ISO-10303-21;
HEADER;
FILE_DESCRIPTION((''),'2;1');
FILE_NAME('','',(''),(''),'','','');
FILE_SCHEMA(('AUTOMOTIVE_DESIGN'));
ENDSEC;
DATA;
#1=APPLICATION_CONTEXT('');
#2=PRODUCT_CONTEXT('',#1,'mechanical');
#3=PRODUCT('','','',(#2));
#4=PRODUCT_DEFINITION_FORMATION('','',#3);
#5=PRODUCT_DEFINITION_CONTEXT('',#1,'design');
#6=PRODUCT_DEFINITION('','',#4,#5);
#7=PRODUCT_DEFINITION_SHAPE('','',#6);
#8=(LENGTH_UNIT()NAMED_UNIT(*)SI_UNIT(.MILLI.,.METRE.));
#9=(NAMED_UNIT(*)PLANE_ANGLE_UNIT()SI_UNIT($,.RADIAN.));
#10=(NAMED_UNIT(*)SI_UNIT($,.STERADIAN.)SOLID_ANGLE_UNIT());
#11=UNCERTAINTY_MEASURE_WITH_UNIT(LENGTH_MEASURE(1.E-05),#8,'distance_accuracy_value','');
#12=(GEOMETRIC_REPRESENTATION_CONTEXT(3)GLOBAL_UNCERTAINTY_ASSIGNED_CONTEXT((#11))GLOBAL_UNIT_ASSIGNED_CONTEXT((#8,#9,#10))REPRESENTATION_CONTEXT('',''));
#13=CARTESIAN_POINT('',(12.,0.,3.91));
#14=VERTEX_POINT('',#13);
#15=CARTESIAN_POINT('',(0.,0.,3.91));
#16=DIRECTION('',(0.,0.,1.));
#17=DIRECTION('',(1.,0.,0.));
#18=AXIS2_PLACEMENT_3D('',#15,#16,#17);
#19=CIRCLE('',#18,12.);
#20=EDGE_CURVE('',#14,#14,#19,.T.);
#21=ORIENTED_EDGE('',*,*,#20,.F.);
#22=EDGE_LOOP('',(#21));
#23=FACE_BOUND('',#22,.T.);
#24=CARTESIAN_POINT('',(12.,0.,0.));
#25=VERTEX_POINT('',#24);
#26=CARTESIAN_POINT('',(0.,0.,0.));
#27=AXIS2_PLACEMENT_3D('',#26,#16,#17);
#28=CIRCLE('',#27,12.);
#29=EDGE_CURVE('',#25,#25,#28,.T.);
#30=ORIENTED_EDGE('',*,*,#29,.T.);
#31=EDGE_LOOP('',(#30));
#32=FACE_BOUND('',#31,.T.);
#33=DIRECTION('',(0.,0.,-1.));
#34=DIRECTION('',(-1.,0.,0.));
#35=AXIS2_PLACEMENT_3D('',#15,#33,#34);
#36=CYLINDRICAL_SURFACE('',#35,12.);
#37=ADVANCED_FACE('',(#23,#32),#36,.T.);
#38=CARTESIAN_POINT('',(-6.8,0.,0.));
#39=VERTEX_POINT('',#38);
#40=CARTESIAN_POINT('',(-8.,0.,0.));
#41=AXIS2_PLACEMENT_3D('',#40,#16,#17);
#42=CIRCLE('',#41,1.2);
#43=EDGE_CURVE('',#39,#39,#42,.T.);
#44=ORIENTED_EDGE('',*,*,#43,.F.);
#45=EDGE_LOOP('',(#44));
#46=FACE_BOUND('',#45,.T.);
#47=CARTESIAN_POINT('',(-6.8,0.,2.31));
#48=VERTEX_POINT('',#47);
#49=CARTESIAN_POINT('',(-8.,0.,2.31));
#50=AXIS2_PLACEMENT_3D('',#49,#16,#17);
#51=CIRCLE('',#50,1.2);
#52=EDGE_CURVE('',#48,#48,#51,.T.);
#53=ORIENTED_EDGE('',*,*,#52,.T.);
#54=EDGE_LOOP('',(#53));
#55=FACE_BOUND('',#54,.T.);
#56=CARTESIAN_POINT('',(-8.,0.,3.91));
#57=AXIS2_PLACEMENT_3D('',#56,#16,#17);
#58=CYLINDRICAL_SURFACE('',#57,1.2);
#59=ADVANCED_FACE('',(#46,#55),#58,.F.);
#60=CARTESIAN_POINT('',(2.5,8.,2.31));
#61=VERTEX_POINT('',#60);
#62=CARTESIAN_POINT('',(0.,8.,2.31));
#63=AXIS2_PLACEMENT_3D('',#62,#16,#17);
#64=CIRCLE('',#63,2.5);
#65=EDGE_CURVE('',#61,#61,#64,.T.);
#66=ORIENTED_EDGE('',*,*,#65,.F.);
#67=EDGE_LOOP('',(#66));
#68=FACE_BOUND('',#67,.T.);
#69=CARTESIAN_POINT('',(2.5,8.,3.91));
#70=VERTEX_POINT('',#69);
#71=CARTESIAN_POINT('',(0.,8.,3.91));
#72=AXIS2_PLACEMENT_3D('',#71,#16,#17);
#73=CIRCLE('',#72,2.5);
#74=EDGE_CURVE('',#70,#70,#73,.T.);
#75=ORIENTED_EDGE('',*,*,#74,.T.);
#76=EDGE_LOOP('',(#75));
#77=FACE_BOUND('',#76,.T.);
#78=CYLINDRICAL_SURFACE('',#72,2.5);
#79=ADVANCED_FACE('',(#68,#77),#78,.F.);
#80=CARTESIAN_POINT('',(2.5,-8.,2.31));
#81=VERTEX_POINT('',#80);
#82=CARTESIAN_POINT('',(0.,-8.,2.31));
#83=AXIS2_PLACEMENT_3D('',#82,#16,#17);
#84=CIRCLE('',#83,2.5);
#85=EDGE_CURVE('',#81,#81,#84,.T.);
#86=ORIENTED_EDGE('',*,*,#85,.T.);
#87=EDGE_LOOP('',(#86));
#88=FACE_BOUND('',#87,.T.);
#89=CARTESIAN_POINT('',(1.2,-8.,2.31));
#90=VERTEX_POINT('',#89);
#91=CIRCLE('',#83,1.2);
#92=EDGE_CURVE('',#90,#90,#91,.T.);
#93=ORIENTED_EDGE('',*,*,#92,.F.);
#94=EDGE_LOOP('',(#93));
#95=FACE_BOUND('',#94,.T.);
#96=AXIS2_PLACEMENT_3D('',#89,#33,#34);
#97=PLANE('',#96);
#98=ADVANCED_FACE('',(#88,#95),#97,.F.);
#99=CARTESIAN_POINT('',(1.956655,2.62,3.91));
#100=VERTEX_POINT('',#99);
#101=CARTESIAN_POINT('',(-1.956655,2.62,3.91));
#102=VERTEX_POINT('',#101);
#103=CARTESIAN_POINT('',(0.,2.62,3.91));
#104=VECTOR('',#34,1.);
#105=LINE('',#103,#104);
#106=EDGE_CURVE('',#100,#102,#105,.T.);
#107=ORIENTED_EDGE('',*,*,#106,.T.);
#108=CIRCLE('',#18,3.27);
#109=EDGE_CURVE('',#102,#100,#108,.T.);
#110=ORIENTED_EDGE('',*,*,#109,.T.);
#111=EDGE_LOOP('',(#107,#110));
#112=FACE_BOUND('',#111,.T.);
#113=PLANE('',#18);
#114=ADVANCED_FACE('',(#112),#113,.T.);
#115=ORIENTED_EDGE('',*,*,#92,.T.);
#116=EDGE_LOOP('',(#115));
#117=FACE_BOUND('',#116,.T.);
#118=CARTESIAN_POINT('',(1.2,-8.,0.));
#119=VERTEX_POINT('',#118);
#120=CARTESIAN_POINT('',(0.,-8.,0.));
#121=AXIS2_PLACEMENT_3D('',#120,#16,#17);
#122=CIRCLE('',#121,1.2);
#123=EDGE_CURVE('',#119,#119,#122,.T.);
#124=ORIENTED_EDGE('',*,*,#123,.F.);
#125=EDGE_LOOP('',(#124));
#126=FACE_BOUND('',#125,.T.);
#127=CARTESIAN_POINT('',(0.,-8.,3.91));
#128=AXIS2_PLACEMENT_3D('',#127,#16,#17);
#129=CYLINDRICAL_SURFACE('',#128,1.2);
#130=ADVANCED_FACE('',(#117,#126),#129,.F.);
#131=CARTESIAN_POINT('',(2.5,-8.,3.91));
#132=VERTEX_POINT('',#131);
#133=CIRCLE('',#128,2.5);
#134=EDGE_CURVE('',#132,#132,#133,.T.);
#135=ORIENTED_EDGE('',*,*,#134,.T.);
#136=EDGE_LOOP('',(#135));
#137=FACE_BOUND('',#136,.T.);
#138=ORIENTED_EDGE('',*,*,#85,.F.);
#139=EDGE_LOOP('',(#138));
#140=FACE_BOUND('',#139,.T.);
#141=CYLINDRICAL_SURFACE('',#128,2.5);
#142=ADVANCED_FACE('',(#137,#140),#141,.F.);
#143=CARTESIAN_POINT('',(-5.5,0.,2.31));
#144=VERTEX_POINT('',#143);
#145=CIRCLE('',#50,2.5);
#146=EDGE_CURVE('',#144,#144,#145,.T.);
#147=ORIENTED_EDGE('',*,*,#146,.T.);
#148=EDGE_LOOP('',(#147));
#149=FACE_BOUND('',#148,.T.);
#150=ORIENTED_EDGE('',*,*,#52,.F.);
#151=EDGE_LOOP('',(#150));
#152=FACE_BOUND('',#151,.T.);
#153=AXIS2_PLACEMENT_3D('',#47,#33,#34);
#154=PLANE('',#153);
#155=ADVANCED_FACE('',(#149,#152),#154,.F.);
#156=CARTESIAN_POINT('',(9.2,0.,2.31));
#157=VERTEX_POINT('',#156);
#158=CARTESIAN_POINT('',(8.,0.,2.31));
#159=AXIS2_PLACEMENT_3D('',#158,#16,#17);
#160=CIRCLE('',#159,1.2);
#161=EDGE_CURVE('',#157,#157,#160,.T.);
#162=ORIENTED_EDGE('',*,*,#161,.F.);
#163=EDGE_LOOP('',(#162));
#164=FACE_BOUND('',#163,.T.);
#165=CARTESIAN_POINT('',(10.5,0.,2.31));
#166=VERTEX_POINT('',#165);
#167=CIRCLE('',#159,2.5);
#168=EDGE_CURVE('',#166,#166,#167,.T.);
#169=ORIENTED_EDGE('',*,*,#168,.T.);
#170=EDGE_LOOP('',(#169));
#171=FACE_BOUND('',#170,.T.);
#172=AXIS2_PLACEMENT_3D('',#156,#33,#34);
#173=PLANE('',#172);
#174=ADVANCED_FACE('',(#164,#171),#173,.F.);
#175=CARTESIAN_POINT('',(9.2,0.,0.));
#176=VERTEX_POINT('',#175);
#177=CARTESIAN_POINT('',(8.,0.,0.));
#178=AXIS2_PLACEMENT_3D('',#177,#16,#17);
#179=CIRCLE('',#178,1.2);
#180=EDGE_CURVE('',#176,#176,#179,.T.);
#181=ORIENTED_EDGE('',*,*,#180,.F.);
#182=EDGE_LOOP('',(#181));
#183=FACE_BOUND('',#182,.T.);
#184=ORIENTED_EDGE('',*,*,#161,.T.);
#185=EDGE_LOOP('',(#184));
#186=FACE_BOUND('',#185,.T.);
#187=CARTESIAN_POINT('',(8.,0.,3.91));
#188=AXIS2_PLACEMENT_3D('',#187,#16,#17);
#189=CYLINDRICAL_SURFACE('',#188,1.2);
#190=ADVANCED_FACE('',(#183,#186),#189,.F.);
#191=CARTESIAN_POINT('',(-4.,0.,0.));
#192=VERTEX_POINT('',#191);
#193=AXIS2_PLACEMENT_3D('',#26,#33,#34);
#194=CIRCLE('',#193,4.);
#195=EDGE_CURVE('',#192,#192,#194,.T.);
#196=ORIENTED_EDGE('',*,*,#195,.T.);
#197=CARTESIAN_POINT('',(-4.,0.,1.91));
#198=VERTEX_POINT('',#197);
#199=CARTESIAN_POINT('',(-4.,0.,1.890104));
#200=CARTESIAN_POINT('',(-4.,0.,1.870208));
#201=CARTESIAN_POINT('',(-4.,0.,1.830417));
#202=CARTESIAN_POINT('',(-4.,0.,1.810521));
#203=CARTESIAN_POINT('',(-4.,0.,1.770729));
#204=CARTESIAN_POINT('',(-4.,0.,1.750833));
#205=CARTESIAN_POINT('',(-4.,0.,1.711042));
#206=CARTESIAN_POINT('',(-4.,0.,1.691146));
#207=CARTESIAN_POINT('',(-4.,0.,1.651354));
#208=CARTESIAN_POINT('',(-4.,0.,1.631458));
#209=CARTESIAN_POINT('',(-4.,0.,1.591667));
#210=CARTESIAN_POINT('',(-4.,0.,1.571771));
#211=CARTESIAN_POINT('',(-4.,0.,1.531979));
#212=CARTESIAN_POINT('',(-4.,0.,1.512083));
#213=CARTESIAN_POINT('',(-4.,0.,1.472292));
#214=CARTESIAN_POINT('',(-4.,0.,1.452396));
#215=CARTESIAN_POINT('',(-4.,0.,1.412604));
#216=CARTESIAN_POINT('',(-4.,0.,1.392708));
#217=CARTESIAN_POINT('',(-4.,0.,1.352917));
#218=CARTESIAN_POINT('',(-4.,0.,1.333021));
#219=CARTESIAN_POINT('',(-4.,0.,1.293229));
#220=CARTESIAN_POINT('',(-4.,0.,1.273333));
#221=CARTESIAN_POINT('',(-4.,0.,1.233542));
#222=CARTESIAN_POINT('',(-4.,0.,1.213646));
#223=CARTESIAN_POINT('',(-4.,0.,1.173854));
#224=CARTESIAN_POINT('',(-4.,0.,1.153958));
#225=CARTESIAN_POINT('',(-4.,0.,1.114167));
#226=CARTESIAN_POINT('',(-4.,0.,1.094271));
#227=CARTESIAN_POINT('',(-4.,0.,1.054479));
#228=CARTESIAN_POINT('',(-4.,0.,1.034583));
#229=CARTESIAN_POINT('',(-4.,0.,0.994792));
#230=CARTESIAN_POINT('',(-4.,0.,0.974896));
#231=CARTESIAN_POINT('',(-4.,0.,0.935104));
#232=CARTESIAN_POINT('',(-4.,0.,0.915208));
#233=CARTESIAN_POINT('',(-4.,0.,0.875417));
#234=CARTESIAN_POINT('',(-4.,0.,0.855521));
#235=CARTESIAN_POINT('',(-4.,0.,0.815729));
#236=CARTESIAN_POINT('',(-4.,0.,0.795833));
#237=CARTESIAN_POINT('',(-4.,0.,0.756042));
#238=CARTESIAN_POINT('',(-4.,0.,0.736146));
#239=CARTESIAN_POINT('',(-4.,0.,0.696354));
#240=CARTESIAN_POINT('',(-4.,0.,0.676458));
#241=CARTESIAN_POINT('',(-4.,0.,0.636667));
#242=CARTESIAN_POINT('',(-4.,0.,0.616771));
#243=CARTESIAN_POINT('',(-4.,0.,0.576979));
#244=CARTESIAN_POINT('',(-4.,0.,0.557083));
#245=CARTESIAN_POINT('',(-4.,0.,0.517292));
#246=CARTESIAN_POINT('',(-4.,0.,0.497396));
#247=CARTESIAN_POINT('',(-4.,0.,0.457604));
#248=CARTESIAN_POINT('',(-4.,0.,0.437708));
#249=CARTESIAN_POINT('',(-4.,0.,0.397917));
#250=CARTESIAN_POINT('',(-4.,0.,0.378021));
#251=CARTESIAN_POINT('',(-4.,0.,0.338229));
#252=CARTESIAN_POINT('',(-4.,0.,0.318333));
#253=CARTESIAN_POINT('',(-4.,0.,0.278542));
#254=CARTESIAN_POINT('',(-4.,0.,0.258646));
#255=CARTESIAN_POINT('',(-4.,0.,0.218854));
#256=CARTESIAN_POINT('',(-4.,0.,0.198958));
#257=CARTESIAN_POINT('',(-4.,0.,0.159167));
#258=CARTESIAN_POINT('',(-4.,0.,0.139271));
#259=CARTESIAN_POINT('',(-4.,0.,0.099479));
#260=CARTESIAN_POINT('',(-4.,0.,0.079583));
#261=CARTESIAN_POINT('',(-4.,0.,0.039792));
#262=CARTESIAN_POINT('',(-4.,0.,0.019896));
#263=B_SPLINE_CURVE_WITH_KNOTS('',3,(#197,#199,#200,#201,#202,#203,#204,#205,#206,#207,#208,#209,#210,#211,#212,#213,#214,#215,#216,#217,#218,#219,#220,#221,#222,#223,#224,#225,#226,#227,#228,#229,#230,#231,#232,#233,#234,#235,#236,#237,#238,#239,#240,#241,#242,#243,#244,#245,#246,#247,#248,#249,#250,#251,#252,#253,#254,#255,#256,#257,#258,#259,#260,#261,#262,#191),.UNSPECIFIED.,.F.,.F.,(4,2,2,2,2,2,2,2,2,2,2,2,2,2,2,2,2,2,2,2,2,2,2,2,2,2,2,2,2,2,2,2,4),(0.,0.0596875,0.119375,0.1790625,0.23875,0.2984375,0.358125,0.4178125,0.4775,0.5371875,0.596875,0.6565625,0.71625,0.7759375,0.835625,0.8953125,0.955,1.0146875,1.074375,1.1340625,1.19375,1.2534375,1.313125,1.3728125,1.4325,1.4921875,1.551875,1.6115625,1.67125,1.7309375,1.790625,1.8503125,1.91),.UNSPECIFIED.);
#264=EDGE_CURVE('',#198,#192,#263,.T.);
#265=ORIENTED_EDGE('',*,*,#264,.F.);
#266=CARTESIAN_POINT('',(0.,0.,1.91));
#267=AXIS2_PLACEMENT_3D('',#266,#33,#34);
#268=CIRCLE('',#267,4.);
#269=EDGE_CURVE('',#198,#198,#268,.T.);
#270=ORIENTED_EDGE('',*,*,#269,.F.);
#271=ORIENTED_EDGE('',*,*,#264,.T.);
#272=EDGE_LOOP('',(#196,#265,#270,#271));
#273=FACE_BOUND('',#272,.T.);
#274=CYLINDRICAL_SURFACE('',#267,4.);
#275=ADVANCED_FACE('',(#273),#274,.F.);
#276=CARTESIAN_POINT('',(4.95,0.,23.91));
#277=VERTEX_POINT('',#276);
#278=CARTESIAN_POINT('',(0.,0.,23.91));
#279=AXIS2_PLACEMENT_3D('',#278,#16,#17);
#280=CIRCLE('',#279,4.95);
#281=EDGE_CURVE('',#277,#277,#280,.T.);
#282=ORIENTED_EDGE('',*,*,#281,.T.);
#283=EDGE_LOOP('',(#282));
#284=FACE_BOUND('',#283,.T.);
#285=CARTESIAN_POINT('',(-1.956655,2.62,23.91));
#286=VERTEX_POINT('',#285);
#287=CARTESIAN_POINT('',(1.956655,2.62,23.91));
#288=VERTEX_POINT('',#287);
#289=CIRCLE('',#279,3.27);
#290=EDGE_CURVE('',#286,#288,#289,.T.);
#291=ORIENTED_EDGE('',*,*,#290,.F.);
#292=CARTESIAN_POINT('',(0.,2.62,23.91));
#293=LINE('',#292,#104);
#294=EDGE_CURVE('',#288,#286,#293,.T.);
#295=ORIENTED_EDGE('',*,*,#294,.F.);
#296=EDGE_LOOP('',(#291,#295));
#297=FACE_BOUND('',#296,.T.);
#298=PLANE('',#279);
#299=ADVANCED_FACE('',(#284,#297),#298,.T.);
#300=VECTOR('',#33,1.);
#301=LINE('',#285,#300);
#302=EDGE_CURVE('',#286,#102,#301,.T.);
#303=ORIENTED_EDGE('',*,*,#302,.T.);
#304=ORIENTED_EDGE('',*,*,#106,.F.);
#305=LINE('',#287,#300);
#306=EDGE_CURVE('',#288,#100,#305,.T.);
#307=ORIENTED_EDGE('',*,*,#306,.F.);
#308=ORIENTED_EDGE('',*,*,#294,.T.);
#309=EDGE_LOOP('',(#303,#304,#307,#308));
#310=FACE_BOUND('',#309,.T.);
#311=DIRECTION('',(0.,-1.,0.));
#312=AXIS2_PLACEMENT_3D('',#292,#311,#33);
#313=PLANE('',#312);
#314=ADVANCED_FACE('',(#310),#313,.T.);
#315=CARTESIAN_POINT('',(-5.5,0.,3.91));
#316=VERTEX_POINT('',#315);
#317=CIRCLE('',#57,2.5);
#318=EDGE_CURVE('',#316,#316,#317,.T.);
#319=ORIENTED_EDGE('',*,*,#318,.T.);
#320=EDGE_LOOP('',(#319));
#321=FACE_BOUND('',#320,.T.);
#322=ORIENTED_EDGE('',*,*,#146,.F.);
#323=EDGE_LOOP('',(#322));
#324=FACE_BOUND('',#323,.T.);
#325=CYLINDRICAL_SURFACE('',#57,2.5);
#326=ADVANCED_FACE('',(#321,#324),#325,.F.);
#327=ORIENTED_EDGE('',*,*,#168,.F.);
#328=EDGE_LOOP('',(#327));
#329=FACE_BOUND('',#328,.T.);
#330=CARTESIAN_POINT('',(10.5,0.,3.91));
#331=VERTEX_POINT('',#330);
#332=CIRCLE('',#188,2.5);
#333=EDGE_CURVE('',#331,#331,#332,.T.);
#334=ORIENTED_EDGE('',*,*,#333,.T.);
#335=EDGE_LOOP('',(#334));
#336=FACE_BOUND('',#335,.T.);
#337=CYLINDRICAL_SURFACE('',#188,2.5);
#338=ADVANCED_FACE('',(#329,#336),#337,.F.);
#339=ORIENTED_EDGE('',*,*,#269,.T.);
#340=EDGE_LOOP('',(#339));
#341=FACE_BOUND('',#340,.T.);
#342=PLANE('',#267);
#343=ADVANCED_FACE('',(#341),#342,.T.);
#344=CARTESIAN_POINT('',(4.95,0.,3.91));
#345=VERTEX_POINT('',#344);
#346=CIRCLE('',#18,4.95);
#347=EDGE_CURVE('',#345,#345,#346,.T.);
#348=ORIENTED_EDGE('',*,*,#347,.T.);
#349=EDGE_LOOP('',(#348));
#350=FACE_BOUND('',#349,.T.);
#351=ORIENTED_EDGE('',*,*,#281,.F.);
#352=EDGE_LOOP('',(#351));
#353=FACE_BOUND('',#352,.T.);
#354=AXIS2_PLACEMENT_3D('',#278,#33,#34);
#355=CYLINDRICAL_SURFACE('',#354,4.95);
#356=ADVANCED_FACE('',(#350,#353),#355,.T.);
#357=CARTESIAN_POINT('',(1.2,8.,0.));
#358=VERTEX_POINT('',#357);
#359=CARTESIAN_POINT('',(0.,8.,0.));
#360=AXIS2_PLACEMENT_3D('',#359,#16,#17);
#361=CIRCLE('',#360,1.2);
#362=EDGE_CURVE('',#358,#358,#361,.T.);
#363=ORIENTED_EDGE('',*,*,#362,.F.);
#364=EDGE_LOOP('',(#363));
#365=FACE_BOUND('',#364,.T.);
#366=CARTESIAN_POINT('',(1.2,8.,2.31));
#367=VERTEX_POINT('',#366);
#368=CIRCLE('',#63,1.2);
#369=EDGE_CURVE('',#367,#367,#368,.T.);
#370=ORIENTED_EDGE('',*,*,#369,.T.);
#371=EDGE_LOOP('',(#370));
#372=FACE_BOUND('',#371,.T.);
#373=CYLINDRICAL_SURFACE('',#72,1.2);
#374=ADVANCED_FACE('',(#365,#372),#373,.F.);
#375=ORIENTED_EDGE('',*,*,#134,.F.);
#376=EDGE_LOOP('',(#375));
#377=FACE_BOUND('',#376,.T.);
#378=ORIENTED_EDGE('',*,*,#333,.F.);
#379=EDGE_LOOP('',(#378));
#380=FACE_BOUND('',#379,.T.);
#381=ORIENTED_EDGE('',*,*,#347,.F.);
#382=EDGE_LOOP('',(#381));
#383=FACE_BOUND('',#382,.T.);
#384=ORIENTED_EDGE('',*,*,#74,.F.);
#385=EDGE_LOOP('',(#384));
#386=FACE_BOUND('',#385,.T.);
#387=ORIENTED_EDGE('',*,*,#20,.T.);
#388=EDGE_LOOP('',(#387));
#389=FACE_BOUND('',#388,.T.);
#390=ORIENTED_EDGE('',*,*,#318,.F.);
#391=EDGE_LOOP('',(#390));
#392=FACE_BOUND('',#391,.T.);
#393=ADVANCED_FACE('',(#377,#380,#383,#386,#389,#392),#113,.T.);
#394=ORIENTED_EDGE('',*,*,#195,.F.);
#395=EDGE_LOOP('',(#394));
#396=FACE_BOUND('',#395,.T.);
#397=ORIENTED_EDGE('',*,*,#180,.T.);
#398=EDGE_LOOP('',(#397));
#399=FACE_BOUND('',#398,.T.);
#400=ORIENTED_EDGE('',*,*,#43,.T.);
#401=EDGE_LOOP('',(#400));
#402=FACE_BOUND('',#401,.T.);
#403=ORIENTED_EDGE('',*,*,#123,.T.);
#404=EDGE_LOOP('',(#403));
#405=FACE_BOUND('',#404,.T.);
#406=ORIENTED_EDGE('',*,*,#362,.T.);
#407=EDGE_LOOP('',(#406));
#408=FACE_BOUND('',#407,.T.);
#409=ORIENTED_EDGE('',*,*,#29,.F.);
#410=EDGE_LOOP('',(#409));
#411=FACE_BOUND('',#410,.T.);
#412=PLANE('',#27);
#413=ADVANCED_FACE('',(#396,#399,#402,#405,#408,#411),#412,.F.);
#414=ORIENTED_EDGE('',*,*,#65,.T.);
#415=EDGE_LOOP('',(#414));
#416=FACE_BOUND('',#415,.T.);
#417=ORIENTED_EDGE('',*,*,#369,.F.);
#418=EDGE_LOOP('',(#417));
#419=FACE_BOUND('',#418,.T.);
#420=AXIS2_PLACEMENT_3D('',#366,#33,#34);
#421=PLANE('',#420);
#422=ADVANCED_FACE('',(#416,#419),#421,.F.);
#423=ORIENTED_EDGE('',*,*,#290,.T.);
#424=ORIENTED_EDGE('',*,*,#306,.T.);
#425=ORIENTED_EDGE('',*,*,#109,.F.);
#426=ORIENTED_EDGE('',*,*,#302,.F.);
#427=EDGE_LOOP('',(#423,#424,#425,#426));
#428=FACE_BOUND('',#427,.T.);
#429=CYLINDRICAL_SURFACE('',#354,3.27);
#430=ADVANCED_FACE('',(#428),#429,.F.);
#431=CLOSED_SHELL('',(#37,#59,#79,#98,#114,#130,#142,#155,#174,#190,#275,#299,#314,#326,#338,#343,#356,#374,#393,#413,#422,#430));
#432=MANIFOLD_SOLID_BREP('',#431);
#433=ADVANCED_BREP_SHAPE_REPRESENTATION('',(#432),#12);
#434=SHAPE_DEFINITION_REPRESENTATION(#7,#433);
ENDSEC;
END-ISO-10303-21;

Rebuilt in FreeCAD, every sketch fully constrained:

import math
import FreeCAD as App
import Part
import Sketcher

V = App.Vector
Q = App.Units.Quantity

doc = App.newDocument("Part")
params = doc.addObject("Spreadsheet::Sheet", "Params")
for row, (alias, value) in enumerate([
    ("sketch1_diameter", "24 mm"),
    ("pad1_length", "3.91 mm"),
    ("sketch2_diameter", "8 mm"),
    ("pocket1_length", "1.91 mm"),
    ("sketch3_radius", "4.95 mm"),
    ("sketch3_radius2", "3.27 mm"),
    ("pad2_length", "20 mm"),
    ("sketch4_diameter", "2.4 mm"),
    ("hole_diameter", "2.4 mm"),
    ("hole_cbore_diameter", "5 mm"),
    ("hole_cbore_depth", "1.6 mm"),
], start=1):
    params.set(f"A{row}", alias)
    params.set(f"B{row}", "=" + value)
    params.setAlias(f"B{row}", alias)

body = doc.addObject("PartDesign::Body", "Body")

# Sketch on XY plane
sketch1 = body.newObject("Sketcher::SketchObject", "Sketch")
sketch1.AttachmentSupport = (doc.getObject("XY_Plane"), [""])
sketch1.MapMode = "FlatFace"
sketch1.addGeometry(Part.Circle(V(0, 0, 0), V(0, 0, 1), 12), False)
sketch1.addConstraint([
    Sketcher.Constraint("Coincident", 0, 3, -1, 1),
    Sketcher.Constraint("Diameter", 0, Q("24 mm")),
])
sketch1.setExpression("Constraints[1]", "Params.sketch1_diameter")
pad1 = body.newObject("PartDesign::Pad", "Pad")
pad1.Profile = sketch1
pad1.setExpression("Length", "Params.pad1_length")

# Sketch on XY plane
sketch2 = body.newObject("Sketcher::SketchObject", "Sketch001")
sketch2.AttachmentSupport = (doc.getObject("XY_Plane"), [""])
sketch2.MapMode = "FlatFace"
sketch2.addGeometry(Part.Circle(V(0, 0, 0), V(0, 0, 1), 4), False)
sketch2.addConstraint([
    Sketcher.Constraint("Coincident", 0, 3, -1, 1),
    Sketcher.Constraint("Diameter", 0, Q("8 mm")),
])
sketch2.setExpression("Constraints[1]", "Params.sketch2_diameter")
pocket1 = body.newObject("PartDesign::Pocket", "Pocket")
pocket1.Profile = sketch2
pocket1.setExpression("Length", "Params.pocket1_length")
pocket1.Reversed = True

# Sketch on XY plane
sketch3 = body.newObject("Sketcher::SketchObject", "Sketch002")
sketch3.AttachmentSupport = (doc.getObject("XY_Plane"), [""])
sketch3.MapMode = "FlatFace"
sketch3.AttachmentOffset = App.Placement(V(0, 0, 3.91), App.Rotation())
sketch3.addGeometry([
    Part.ArcOfCircle(Part.Circle(V(0, 0, 0), V(0, 0, 1), 4.95), math.radians(-41.346111), math.radians(0)),  # 0
    Part.ArcOfCircle(Part.Circle(V(0, 0, 0), V(0, 0, 1), 4.95), math.radians(0), math.radians(221.346111)),  # 1
    Part.ArcOfCircle(Part.Circle(V(0, 0, 0), V(0, 0, 1), 4.95), math.radians(-138.653889), math.radians(-41.346111)),  # 2
    Part.ArcOfCircle(Part.Circle(V(0, 0, 0), V(0, 0, 1), 3.27), math.radians(-90), math.radians(53.247073)),  # 3
    Part.ArcOfCircle(Part.Circle(V(0, 0, 0), V(0, 0, 1), 3.27), math.radians(126.752927), math.radians(270)),  # 4
    Part.LineSegment(V(-1.956655, 2.62, 0), V(1.956655, 2.62, 0)),  # 5
], False)
sketch3.addConstraint([
    Sketcher.Constraint("Tangent", 0, 2, 1, 1),
    Sketcher.Constraint("Tangent", 1, 2, 2, 1),
    Sketcher.Constraint("Tangent", 2, 2, 0, 1),
    Sketcher.Constraint("Tangent", 3, 1, 4, 2),
    Sketcher.Constraint("Coincident", 4, 1, 5, 1),
    Sketcher.Constraint("Coincident", 5, 2, 3, 2),
    Sketcher.Constraint("Horizontal", 5),
    Sketcher.Constraint("Coincident", 0, 3, -1, 1),
    Sketcher.Constraint("Coincident", 3, 3, -1, 1),
    Sketcher.Constraint("Equal", 3, 4),
    Sketcher.Constraint("PointOnObject", 0, 2, -1),
    Sketcher.Constraint("PointOnObject", 3, 1, -2),
    Sketcher.Constraint("Horizontal", 1, 2, 2, 2),
    Sketcher.Constraint("Horizontal", 2, 2, 3, 1),
    Sketcher.Constraint("Radius", 0, Q("4.95 mm")),
    Sketcher.Constraint("Radius", 3, Q("3.27 mm")),
    Sketcher.Constraint("DistanceY", -1, 1, 4, 1, Q("2.62 mm")),
])
sketch3.setExpression("Constraints[14]", "Params.sketch3_radius")
sketch3.setExpression("Constraints[15]", "Params.sketch3_radius2")
pad2 = body.newObject("PartDesign::Pad", "Pad001")
pad2.Profile = sketch3
pad2.setExpression("Length", "Params.pad2_length")

# Sketch on XY plane
sketch4 = body.newObject("Sketcher::SketchObject", "Sketch003")
sketch4.AttachmentSupport = (doc.getObject("XY_Plane"), [""])
sketch4.MapMode = "FlatFace"
sketch4.AttachmentOffset = App.Placement(V(0, 0, 3.91), App.Rotation())
sketch4.addGeometry(Part.Circle(V(0, 8, 0), V(0, 0, 1), 1.2), False)
sketch4.addConstraint([
    Sketcher.Constraint("PointOnObject", 0, 3, -2),
    Sketcher.Constraint("Diameter", 0, Q("2.4 mm")),
    Sketcher.Constraint("DistanceY", -1, 1, 0, 3, Q("8 mm")),
])
sketch4.setExpression("Constraints[1]", "Params.sketch4_diameter")
doc.recompute()
hole = body.newObject("PartDesign::Hole", "Hole")
hole.Profile = sketch4
hole.ThreadType = "None"
hole.setExpression("Diameter", "Params.hole_diameter")
hole.DepthType = "ThroughAll"
hole.HoleCutType = "Counterbore"
hole.setExpression("HoleCutDiameter", "Params.hole_cbore_diameter")
hole.setExpression("HoleCutDepth", "Params.hole_cbore_depth")
doc.recompute()

polarpattern = body.newObject("PartDesign::PolarPattern", "PolarPattern")
polarpattern.Originals = [hole]
polarpattern.Axis = (doc.getObject("Z_Axis"), [""])
polarpattern.Angle = 360
polarpattern.Occurrences = 4
body.Tip = polarpattern

doc.recompute()
